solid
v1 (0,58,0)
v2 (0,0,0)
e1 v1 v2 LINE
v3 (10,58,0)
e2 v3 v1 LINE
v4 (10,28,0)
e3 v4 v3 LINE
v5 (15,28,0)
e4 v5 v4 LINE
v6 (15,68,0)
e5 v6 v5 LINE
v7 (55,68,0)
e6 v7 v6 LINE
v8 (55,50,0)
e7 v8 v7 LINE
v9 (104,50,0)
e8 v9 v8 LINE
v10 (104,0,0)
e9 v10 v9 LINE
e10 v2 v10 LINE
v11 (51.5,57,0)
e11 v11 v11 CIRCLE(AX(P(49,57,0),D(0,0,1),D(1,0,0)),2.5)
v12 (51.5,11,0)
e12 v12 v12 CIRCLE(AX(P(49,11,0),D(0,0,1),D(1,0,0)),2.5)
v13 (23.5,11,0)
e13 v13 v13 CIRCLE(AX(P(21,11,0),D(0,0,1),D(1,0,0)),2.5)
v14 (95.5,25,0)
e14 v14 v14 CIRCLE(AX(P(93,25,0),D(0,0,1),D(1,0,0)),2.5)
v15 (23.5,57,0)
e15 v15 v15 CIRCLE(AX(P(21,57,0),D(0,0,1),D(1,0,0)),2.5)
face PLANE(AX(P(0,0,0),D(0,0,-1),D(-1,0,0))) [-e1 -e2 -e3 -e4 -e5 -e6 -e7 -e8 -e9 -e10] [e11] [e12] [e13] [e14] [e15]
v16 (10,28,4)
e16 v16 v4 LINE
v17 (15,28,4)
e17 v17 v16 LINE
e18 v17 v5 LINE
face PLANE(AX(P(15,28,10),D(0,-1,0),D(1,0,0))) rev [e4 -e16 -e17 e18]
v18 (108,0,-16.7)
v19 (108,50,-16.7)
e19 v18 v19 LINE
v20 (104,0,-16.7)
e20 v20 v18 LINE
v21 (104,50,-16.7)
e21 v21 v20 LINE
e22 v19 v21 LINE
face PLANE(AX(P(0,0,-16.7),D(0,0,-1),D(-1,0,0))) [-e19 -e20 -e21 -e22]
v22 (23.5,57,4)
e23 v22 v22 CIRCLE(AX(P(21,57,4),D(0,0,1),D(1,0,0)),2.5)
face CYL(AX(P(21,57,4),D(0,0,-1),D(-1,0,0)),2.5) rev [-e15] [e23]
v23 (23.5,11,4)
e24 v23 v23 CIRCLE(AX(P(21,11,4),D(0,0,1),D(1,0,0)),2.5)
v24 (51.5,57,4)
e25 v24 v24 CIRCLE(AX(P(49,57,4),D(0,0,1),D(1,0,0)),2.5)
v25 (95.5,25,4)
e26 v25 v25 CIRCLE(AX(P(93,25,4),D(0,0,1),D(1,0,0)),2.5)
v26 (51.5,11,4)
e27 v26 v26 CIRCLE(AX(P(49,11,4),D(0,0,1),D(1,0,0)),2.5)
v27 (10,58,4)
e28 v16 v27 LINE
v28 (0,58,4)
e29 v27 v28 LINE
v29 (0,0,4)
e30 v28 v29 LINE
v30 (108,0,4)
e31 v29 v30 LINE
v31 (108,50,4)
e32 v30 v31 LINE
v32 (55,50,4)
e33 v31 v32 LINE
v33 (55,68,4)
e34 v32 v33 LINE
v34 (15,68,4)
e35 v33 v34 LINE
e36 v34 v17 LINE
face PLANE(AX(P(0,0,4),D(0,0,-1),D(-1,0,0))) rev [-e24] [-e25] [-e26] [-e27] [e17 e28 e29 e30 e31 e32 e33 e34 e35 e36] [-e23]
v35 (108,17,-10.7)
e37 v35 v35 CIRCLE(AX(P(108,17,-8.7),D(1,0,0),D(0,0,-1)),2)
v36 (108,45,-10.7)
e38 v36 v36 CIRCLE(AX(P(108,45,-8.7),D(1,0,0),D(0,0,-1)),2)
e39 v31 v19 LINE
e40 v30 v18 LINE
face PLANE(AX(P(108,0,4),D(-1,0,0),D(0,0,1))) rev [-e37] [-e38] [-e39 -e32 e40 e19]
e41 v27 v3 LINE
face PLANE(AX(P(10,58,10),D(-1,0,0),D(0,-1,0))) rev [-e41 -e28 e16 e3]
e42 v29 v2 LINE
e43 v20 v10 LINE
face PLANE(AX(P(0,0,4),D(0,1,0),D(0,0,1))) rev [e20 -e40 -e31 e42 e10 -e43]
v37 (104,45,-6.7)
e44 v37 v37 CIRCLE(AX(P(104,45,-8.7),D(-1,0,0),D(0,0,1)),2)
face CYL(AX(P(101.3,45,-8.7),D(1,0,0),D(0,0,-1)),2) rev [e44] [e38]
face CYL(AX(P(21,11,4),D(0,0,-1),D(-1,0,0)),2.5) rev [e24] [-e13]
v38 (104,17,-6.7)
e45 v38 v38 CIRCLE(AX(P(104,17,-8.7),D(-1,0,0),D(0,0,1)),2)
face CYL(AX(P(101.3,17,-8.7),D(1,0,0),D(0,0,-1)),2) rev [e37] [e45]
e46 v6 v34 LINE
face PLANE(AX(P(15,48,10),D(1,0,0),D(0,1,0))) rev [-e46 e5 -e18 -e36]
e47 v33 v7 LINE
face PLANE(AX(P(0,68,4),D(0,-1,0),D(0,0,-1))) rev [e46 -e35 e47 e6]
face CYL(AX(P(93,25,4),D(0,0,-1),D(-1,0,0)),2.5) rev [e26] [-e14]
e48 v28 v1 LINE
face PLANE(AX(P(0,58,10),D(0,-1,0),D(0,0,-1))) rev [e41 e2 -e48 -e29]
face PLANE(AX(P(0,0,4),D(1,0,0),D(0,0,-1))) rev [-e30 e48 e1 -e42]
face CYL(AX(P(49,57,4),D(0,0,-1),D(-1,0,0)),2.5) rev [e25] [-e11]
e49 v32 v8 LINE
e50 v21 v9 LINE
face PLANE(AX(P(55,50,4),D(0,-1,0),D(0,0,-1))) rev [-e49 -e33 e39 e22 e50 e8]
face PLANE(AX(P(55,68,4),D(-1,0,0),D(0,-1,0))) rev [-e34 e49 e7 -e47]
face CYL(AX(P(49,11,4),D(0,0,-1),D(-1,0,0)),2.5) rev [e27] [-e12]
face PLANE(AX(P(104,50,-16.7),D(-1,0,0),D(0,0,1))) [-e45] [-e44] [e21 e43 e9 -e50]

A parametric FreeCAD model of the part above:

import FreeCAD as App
import Part
import Sketcher

V = App.Vector
Q = App.Units.Quantity

doc = App.newDocument("Part")
body = doc.addObject("PartDesign::Body", "Body")

sketch1 = body.newObject("Sketcher::SketchObject", "Sketch")
sketch1.AttachmentSupport = (doc.getObject("XY_Plane"), [""])
sketch1.MapMode = "FlatFace"
sketch1.addGeometry(Part.LineSegment(V(0, 0, 0), V(108, 0, 0)), False)
sketch1.addGeometry(Part.LineSegment(V(108, 0, 0), V(108, 50, 0)), False)
sketch1.addGeometry(Part.LineSegment(V(108, 50, 0), V(55, 50, 0)), False)
sketch1.addGeometry(Part.LineSegment(V(55, 50, 0), V(55, 68, 0)), False)
sketch1.addGeometry(Part.LineSegment(V(55, 68, 0), V(0, 68, 0)), False)
sketch1.addGeometry(Part.LineSegment(V(0, 68, 0), V(0, 0, 0)), False)
sketch1.addGeometry(Part.Circle(V(21, 11, 0), V(0, 0, 1), 2.5), False)
sketch1.addGeometry(Part.Circle(V(49, 11, 0), V(0, 0, 1), 2.5), False)
sketch1.addGeometry(Part.Circle(V(93, 25, 0), V(0, 0, 1), 2.5), False)
sketch1.addGeometry(Part.Circle(V(21, 57, 0), V(0, 0, 1), 2.5), False)
sketch1.addGeometry(Part.Circle(V(49, 57, 0), V(0, 0, 1), 2.5), False)
sketch1.addConstraint(Sketcher.Constraint("Coincident", 0, 2, 1, 1))
sketch1.addConstraint(Sketcher.Constraint("Coincident", 1, 2, 2, 1))
sketch1.addConstraint(Sketcher.Constraint("Coincident", 2, 2, 3, 1))
sketch1.addConstraint(Sketcher.Constraint("Coincident", 3, 2, 4, 1))
sketch1.addConstraint(Sketcher.Constraint("Coincident", 4, 2, 5, 1))
sketch1.addConstraint(Sketcher.Constraint("Coincident", 5, 2, 0, 1))
sketch1.addConstraint(Sketcher.Constraint("Horizontal", 0))
sketch1.addConstraint(Sketcher.Constraint("Vertical", 1))
sketch1.addConstraint(Sketcher.Constraint("Horizontal", 2))
sketch1.addConstraint(Sketcher.Constraint("Vertical", 3))
sketch1.addConstraint(Sketcher.Constraint("Horizontal", 4))
sketch1.addConstraint(Sketcher.Constraint("Vertical", 5))
sketch1.addConstraint(Sketcher.Constraint("Coincident", 5, 2, -1, 1))
sketch1.addConstraint(Sketcher.Constraint("Equal", 6, 7))
sketch1.addConstraint(Sketcher.Constraint("Equal", 7, 8))
sketch1.addConstraint(Sketcher.Constraint("Equal", 8, 9))
sketch1.addConstraint(Sketcher.Constraint("Equal", 9, 10))
sketch1.addConstraint(Sketcher.Constraint("Horizontal", 6, 3, 7, 3))
sketch1.addConstraint(Sketcher.Constraint("Horizontal", 9, 3, 10, 3))
sketch1.addConstraint(Sketcher.Constraint("Vertical", 6, 3, 9, 3))
sketch1.addConstraint(Sketcher.Constraint("Vertical", 7, 3, 10, 3))
sketch1.addConstraint(Sketcher.Constraint("Diameter", 6, Q("5 mm")))
sketch1.addConstraint(Sketcher.Constraint("DistanceX", 0, 1, 0, 2, Q("108 mm")))
sketch1.addConstraint(Sketcher.Constraint("DistanceX", 2, 2, 2, 1, Q("53 mm")))
sketch1.addConstraint(Sketcher.Constraint("DistanceY", 1, 1, 1, 2, Q("50 mm")))
sketch1.addConstraint(Sketcher.Constraint("DistanceY", 3, 1, 3, 2, Q("18 mm")))
sketch1.addConstraint(Sketcher.Constraint("DistanceX", -1, 1, 6, 3, Q("21 mm")))
sketch1.addConstraint(Sketcher.Constraint("DistanceY", -1, 1, 6, 3, Q("11 mm")))
sketch1.addConstraint(Sketcher.Constraint("DistanceX", -1, 1, 7, 3, Q("49 mm")))
sketch1.addConstraint(Sketcher.Constraint("DistanceX", -1, 1, 8, 3, Q("93 mm")))
sketch1.addConstraint(Sketcher.Constraint("DistanceY", -1, 1, 8, 3, Q("25 mm")))
sketch1.addConstraint(Sketcher.Constraint("DistanceY", -1, 1, 9, 3, Q("57 mm")))
pad1 = body.newObject("PartDesign::Pad", "Pad")
pad1.Profile = sketch1
pad1.Length = 4

sketch2 = body.newObject("Sketcher::SketchObject", "Sketch001")
sketch2.AttachmentSupport = (doc.getObject("XY_Plane"), [""])
sketch2.MapMode = "FlatFace"
sketch2.AttachmentOffset = App.Placement(V(0, 0, 4), App.Rotation())
sketch2.addGeometry(Part.LineSegment(V(104, 50, 0), V(104, 0, 0)), False)
sketch2.addGeometry(Part.LineSegment(V(104, 0, 0), V(108, 0, 0)), False)
sketch2.addGeometry(Part.LineSegment(V(108, 0, 0), V(108, 50, 0)), False)
sketch2.addGeometry(Part.LineSegment(V(108, 50, 0), V(104, 50, 0)), False)
sketch2.addConstraint(Sketcher.Constraint("Coincident", 0, 2, 1, 1))
sketch2.addConstraint(Sketcher.Constraint("Coincident", 1, 2, 2, 1))
sketch2.addConstraint(Sketcher.Constraint("Coincident", 2, 2, 3, 1))
sketch2.addConstraint(Sketcher.Constraint("Coincident", 3, 2, 0, 1))
sketch2.addConstraint(Sketcher.Constraint("Vertical", 0))
sketch2.addConstraint(Sketcher.Constraint("Horizontal", 1))
sketch2.addConstraint(Sketcher.Constraint("Vertical", 2))
sketch2.addConstraint(Sketcher.Constraint("Horizontal", 3))
sketch2.addConstraint(Sketcher.Constraint("PointOnObject", 0, 2, -1))
sketch2.addConstraint(Sketcher.Constraint("DistanceX", 1, 1, 1, 2, Q("4 mm")))
sketch2.addConstraint(Sketcher.Constraint("DistanceY", 0, 2, 0, 1, Q("50 mm")))
sketch2.addConstraint(Sketcher.Constraint("DistanceX", -1, 1, 0, 2, Q("104 mm")))
pad2 = body.newObject("PartDesign::Pad", "Pad001")
pad2.Profile = sketch2
pad2.Length = 20.7
pad2.Reversed = True

sketch3 = body.newObject("Sketcher::SketchObject", "Sketch002")
sketch3.AttachmentSupport = (doc.getObject("YZ_Plane"), [""])
sketch3.MapMode = "FlatFace"
sketch3.AttachmentOffset = App.Placement(V(0, 0, 108), App.Rotation())
sketch3.addGeometry(Part.Circle(V(45, -8.7, 0), V(0, 0, 1), 2), False)
sketch3.addGeometry(Part.Circle(V(17, -8.7, 0), V(0, 0, 1), 2), False)
sketch3.addConstraint(Sketcher.Constraint("Equal", 0, 1))
sketch3.addConstraint(Sketcher.Constraint("Horizontal", 0, 3, 1, 3))
sketch3.addConstraint(Sketcher.Constraint("Diameter", 0, Q("4 mm")))
sketch3.addConstraint(Sketcher.Constraint("DistanceX", -1, 1, 0, 3, Q("45 mm")))
sketch3.addConstraint(Sketcher.Constraint("DistanceX", -1, 1, 1, 3, Q("17 mm")))
sketch3.addConstraint(Sketcher.Constraint("DistanceY", 0, 3, -1, 1, Q("8.7 mm")))
pocket1 = body.newObject("PartDesign::Pocket", "Pocket")
pocket1.Profile = sketch3
pocket1.Length = 6.7

sketch4 = body.newObject("Sketcher::SketchObject", "Sketch003")
sketch4.AttachmentSupport = (doc.getObject("XY_Plane"), [""])
sketch4.MapMode = "FlatFace"
sketch4.addGeometry(Part.LineSegment(V(0, 68, 0), V(15, 68, 0)), False)
sketch4.addGeometry(Part.LineSegment(V(15, 68, 0), V(15, 28, 0)), False)
sketch4.addGeometry(Part.LineSegment(V(15, 28, 0), V(10, 28, 0)), False)
sketch4.addGeometry(Part.LineSegment(V(10, 28, 0), V(10, 58, 0)), False)
sketch4.addGeometry(Part.LineSegment(V(10, 58, 0), V(0, 58, 0)), False)
sketch4.addGeometry(Part.LineSegment(V(0, 58, 0), V(0, 68, 0)), False)
sketch4.addConstraint(Sketcher.Constraint("Coincident", 0, 2, 1, 1))
sketch4.addConstraint(Sketcher.Constraint("Coincident", 1, 2, 2, 1))
sketch4.addConstraint(Sketcher.Constraint("Coincident", 2, 2, 3, 1))
sketch4.addConstraint(Sketcher.Constraint("Coincident", 3, 2, 4, 1))
sketch4.addConstraint(Sketcher.Constraint("Coincident", 4, 2, 5, 1))
sketch4.addConstraint(Sketcher.Constraint("Coincident", 5, 2, 0, 1))
sketch4.addConstraint(Sketcher.Constraint("Horizontal", 0))
sketch4.addConstraint(Sketcher.Constraint("Vertical", 1))
sketch4.addConstraint(Sketcher.Constraint("Horizontal", 2))
sketch4.addConstraint(Sketcher.Constraint("Vertical", 3))
sketch4.addConstraint(Sketcher.Constraint("Horizontal", 4))
sketch4.addConstraint(Sketcher.Constraint("Vertical", 5))
sketch4.addConstraint(Sketcher.Constraint("PointOnObject", 4, 2, -2))
sketch4.addConstraint(Sketcher.Constraint("Equal", 4, 5))
sketch4.addConstraint(Sketcher.Constraint("DistanceX", 0, 1, 0, 2, Q("15 mm")))
sketch4.addConstraint(Sketcher.Constraint("DistanceX", 2, 2, 2, 1, Q("5 mm")))
sketch4.addConstraint(Sketcher.Constraint("DistanceY", 1, 2, 1, 1, Q("40 mm")))
sketch4.addConstraint(Sketcher.Constraint("DistanceY", -1, 1, 0, 2, Q("68 mm")))
pocket2 = body.newObject("PartDesign::Pocket", "Pocket001")
pocket2.Profile = sketch4
pocket2.Length = 10
pocket2.Reversed = True

doc.recompute()
